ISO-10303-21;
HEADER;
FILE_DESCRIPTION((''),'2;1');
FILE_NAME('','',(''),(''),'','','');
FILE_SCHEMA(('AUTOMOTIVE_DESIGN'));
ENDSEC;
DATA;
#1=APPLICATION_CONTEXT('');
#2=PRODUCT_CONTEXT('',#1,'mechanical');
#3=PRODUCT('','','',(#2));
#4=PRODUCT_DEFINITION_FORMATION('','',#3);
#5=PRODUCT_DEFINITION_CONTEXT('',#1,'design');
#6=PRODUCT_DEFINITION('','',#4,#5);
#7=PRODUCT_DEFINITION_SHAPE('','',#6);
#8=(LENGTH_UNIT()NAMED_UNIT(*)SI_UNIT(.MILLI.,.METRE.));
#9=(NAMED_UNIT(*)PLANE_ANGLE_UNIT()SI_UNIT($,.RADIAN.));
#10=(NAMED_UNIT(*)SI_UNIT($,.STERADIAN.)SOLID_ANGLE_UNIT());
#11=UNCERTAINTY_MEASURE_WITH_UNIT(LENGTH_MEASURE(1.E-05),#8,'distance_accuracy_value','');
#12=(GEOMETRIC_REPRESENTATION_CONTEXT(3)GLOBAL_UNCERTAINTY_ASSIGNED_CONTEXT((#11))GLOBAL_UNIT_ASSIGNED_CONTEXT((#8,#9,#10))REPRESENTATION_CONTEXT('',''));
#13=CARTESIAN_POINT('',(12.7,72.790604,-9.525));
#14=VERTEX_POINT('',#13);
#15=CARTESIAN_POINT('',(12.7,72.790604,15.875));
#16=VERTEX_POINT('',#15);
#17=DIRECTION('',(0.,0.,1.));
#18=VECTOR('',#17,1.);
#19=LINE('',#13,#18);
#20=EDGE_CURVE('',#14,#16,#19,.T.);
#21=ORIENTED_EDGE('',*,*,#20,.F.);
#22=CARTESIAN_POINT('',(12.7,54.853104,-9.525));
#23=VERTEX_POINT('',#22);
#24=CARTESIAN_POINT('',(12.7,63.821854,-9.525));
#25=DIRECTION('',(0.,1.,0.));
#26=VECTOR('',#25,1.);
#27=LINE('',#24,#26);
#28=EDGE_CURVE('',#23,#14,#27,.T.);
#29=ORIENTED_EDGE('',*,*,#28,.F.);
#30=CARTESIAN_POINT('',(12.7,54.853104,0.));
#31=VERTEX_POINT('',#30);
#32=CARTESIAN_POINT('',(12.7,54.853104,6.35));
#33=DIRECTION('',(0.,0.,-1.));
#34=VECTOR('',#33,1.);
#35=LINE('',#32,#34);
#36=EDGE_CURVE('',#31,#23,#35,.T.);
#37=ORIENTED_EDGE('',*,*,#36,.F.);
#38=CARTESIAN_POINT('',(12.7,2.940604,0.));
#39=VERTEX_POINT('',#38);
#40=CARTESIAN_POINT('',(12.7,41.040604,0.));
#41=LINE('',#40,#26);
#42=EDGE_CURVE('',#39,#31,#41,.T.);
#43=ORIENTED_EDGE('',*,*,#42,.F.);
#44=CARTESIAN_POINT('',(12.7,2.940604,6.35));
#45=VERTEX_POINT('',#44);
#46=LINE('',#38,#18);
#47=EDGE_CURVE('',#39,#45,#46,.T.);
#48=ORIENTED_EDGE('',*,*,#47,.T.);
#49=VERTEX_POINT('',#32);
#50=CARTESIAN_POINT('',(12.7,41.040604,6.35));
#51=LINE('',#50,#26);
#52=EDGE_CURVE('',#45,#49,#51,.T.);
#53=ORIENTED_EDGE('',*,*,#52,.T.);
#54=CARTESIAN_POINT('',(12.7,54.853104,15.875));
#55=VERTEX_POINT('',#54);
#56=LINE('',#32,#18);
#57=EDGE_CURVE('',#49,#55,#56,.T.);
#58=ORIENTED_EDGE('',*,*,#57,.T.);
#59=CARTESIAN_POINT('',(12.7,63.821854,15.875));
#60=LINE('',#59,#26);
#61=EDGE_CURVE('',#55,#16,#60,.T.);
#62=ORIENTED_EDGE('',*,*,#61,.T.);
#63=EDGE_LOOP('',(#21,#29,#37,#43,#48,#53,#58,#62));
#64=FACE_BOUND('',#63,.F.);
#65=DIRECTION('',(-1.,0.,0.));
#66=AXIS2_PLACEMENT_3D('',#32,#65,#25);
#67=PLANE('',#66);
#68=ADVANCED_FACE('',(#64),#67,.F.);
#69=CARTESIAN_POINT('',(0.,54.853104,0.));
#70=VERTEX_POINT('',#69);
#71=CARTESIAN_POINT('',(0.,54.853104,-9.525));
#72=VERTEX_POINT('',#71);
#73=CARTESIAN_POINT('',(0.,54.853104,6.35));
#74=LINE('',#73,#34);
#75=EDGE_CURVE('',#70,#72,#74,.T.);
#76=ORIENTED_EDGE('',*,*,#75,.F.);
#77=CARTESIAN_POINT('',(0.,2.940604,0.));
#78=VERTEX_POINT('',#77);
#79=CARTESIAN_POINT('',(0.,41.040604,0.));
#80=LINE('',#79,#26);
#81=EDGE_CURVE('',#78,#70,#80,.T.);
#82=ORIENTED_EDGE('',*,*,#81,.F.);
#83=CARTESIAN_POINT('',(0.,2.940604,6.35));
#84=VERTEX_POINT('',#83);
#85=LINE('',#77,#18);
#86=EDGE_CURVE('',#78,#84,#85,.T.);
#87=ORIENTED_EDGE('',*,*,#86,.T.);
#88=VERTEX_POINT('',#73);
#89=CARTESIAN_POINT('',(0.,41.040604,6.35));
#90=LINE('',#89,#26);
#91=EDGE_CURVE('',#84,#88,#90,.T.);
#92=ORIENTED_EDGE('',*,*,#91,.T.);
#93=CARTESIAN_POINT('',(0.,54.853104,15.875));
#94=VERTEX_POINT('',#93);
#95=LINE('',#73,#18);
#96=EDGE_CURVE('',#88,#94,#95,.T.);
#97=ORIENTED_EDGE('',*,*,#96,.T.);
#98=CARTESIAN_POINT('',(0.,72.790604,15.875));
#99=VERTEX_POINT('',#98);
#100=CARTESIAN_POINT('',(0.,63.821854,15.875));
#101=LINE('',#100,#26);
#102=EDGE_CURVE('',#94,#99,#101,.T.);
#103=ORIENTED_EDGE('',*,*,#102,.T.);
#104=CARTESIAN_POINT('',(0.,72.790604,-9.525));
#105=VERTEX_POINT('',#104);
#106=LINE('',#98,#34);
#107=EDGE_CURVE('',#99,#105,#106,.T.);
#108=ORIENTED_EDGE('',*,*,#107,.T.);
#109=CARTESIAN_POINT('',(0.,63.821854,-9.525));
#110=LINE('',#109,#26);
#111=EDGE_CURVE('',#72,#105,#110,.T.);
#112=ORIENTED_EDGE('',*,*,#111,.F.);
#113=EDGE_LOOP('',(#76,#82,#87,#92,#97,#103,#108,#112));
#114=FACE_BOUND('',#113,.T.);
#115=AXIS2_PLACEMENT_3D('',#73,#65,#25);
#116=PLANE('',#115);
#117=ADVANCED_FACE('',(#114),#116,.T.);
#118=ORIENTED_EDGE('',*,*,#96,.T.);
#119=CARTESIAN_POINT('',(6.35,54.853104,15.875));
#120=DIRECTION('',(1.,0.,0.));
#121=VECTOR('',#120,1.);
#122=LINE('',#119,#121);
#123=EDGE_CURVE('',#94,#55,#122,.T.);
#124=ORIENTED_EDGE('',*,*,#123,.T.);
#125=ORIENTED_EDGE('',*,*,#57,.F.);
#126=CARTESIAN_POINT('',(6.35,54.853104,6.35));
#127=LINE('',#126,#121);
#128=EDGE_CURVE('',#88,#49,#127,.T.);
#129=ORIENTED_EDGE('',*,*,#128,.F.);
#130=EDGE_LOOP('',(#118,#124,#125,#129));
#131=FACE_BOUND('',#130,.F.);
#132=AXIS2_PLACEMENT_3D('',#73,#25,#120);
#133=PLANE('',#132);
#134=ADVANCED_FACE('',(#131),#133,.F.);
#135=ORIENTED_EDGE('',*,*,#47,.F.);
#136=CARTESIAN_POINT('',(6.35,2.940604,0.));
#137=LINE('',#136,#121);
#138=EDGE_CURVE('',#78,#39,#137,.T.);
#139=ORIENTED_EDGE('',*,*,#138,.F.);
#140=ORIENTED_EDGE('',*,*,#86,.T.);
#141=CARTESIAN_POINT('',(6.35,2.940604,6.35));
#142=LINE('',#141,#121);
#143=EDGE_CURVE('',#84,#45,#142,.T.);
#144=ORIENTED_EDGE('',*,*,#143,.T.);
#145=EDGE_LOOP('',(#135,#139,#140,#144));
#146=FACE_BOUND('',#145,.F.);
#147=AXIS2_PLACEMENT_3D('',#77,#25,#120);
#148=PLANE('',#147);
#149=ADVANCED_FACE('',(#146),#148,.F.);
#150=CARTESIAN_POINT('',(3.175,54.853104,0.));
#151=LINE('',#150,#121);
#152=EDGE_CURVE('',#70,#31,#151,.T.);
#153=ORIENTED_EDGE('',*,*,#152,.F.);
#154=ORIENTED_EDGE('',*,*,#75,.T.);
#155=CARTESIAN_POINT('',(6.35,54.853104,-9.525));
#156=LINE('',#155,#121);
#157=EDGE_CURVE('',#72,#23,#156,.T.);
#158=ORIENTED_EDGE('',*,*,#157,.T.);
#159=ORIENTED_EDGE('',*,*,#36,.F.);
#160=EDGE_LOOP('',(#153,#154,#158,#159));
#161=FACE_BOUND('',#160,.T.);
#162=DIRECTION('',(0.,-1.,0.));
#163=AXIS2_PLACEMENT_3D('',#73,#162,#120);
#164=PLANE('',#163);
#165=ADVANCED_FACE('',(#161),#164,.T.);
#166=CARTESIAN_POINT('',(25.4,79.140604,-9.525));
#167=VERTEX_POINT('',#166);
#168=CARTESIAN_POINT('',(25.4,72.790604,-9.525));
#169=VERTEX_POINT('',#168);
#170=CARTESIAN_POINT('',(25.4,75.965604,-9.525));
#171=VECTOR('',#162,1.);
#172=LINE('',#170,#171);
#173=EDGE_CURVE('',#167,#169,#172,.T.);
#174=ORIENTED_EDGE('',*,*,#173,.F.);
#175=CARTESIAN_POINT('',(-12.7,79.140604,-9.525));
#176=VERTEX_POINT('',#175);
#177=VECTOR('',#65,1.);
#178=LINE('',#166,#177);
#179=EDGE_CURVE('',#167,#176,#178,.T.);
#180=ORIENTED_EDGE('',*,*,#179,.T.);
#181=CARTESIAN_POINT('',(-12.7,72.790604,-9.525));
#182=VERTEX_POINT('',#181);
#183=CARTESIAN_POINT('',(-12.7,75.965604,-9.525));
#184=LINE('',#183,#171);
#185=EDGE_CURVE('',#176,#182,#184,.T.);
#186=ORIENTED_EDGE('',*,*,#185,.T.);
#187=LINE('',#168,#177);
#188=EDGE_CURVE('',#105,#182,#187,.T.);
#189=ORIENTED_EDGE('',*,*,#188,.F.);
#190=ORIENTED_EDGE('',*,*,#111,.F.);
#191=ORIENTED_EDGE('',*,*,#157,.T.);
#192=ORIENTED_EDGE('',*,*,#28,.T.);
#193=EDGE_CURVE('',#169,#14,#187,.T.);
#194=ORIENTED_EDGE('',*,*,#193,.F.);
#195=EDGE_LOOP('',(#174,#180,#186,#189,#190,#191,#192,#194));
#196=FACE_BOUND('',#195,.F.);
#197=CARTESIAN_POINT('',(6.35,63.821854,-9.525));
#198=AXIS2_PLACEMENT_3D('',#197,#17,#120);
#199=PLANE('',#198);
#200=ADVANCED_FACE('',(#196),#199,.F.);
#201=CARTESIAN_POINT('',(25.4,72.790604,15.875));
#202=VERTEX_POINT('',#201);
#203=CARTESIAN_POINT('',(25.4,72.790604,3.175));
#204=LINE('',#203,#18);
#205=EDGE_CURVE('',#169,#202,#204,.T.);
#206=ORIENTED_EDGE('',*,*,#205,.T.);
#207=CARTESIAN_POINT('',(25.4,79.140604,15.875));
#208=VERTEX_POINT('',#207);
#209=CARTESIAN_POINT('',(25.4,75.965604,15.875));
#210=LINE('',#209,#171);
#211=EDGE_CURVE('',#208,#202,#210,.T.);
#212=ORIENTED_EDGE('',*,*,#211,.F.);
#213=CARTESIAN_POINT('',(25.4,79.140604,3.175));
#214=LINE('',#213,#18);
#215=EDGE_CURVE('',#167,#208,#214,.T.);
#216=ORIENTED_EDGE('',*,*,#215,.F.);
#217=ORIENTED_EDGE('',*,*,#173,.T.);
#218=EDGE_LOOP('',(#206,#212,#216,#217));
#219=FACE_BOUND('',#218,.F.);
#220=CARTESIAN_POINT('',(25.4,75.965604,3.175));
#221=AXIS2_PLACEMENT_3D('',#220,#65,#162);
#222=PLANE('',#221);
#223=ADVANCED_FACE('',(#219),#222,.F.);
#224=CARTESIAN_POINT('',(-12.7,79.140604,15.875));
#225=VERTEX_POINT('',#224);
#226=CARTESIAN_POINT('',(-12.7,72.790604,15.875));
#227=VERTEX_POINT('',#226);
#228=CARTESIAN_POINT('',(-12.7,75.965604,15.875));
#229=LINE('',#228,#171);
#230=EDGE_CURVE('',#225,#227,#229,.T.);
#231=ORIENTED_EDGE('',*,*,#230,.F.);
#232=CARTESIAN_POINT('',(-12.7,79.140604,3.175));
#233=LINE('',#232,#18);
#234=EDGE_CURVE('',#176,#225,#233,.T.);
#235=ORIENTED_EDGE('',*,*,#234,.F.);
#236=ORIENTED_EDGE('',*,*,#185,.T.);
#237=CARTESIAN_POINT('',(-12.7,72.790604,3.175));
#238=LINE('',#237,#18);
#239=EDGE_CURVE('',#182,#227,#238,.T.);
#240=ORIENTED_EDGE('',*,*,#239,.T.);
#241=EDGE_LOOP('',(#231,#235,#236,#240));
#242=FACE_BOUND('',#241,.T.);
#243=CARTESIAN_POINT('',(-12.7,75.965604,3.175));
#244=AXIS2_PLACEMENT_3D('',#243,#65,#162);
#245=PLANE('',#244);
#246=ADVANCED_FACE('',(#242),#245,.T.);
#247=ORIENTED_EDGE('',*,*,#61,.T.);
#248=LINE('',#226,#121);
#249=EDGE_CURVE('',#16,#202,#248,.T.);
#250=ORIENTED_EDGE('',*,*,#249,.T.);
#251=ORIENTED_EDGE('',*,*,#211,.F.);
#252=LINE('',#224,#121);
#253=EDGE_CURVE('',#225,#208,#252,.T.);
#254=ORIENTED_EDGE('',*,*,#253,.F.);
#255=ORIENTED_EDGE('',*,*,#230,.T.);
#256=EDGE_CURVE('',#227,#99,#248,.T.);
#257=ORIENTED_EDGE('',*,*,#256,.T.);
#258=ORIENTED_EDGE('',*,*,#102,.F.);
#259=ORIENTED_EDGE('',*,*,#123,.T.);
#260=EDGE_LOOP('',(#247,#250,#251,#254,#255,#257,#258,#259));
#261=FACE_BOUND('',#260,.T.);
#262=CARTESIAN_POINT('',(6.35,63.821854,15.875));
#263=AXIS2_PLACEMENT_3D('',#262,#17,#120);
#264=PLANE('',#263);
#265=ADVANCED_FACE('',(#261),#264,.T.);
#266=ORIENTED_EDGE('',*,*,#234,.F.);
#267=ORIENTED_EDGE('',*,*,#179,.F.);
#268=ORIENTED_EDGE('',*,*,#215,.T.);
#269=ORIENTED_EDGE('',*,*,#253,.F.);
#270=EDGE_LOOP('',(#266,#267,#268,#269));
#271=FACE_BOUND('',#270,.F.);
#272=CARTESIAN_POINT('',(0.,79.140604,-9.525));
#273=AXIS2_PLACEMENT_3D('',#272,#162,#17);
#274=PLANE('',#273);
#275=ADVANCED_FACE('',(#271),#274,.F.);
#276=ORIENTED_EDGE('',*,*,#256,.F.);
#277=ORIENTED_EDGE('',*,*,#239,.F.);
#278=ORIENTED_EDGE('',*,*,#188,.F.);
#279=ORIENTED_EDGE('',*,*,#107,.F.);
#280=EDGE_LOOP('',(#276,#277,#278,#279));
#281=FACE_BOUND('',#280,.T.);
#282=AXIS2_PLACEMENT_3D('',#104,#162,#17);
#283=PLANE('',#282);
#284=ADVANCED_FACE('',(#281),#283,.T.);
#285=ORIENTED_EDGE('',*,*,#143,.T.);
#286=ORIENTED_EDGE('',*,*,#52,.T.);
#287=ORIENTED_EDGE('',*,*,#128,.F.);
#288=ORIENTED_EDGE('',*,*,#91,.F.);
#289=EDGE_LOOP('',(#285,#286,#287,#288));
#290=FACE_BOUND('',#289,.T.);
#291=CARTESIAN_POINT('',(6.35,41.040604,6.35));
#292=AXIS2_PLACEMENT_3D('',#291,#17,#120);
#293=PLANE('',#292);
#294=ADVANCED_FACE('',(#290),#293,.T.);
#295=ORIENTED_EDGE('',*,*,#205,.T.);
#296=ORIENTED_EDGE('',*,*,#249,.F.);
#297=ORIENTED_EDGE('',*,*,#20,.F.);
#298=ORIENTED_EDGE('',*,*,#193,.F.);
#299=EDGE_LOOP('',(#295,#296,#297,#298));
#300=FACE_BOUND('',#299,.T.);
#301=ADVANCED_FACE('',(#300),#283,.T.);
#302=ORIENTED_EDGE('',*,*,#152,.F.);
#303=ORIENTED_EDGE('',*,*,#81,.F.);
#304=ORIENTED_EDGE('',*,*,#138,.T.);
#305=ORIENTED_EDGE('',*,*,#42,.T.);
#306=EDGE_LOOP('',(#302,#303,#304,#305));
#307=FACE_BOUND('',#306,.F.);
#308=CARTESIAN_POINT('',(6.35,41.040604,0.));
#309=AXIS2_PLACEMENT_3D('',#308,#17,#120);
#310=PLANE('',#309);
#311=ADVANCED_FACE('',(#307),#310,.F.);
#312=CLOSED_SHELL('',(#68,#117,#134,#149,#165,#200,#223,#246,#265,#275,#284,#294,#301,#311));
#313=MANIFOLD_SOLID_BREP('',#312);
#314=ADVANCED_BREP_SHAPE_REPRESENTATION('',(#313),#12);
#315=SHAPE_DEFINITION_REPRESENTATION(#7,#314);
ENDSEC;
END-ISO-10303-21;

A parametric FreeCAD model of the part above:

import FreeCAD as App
import Part
import Sketcher

V = App.Vector
Q = App.Units.Quantity


def add_polygon(sketch, points):
    """Adds a closed chain of lines whose ends are joined by coincident constraints."""
    first, n = sketch.GeometryCount, len(points)
    for a, b in zip(points, points[1:] + points[:1]):
        sketch.addGeometry(Part.LineSegment(App.Vector(*a, 0), App.Vector(*b, 0)), False)
    for i in range(n):
        sketch.addConstraint(Sketcher.Constraint("Coincident", first + i, 2, first + (i + 1) % n, 1))

doc = App.newDocument("Part")
body = doc.addObject("PartDesign::Body", "Body")

# Sketch on XY plane
sketch1 = doc.addObject("Sketcher::SketchObject", "Sketch")
body.addObject(sketch1)
sketch1.AttachmentSupport = (doc.XY_Plane, [""])
sketch1.MapMode = "FlatFace"
add_polygon(sketch1, [(0, 79.140604), (0, 2.940604), (12.7, 2.940604), (12.7, 79.140604)])  # lines 0-3
sketch1.addConstraint(Sketcher.Constraint("Vertical", 0))
sketch1.addConstraint(Sketcher.Constraint("Horizontal", 1))
sketch1.addConstraint(Sketcher.Constraint("Vertical", 2))
sketch1.addConstraint(Sketcher.Constraint("Horizontal", 3))
sketch1.addConstraint(Sketcher.Constraint("PointOnObject", 0, 2, -2))
sketch1.addConstraint(Sketcher.Constraint("DistanceY", 0, 2, 0, 1, Q("3 in")))
sketch1.addConstraint(Sketcher.Constraint("DistanceX", 1, 1, 1, 2, Q("0.5 in")))
sketch1.addConstraint(Sketcher.Constraint("DistanceY", -1, 1, 0, 2, Q("2.940604 mm")))
pad1 = doc.addObject("PartDesign::Pad", "Pad")
body.addObject(pad1)
pad1.Profile = sketch1
pad1.Length = Q("0.25 in")

# Sketch on YZ plane
sketch2 = doc.addObject("Sketcher::SketchObject", "Sketch001")
body.addObject(sketch2)
sketch2.AttachmentSupport = (doc.YZ_Plane, [""])
sketch2.MapMode = "FlatFace"
add_polygon(sketch2, [(79.140604, 15.875), (79.140604, -9.525), (72.790604, -9.525), (72.790604, 15.875)])  # lines 0-3
sketch2.addConstraint(Sketcher.Constraint("Vertical", 0))
sketch2.addConstraint(Sketcher.Constraint("Horizontal", 1))
sketch2.addConstraint(Sketcher.Constraint("Vertical", 2))
sketch2.addConstraint(Sketcher.Constraint("Horizontal", 3))
sketch2.addConstraint(Sketcher.Constraint("DistanceY", 0, 2, 0, 1, Q("1 in")))
sketch2.addConstraint(Sketcher.Constraint("DistanceX", 1, 2, 1, 1, Q("0.25 in")))
sketch2.addConstraint(Sketcher.Constraint("DistanceY", 0, 2, -1, 1, Q("0.375 in")))
sketch2.addConstraint(Sketcher.Constraint("DistanceX", -1, 1, 0, 2, Q("79.140604 mm")))
pad2 = doc.addObject("PartDesign::Pad", "Pad001")
body.addObject(pad2)
pad2.Profile = sketch2
pad2.Type = "TwoLengths"
pad2.Length = Q("0.5 in")
pad2.Length2 = Q("1 in")
pad2.Reversed = True

# Sketch on XY plane
sketch3 = doc.addObject("Sketcher::SketchObject", "Sketch002")
body.addObject(sketch3)
sketch3.AttachmentSupport = (doc.XY_Plane, [""])
sketch3.MapMode = "FlatFace"
sketch3.AttachmentOffset = App.Placement(V(0, 0, 0.25 * 25.4), App.Rotation())
add_polygon(sketch3, [(0, 72.790604), (0, 54.853104), (12.7, 54.853104), (12.7, 72.790604)])  # lines 0-3
sketch3.addConstraint(Sketcher.Constraint("Vertical", 0))
sketch3.addConstraint(Sketcher.Constraint("Horizontal", 1))
sketch3.addConstraint(Sketcher.Constraint("Vertical", 2))
sketch3.addConstraint(Sketcher.Constraint("Horizontal", 3))
sketch3.addConstraint(Sketcher.Constraint("PointOnObject", 0, 2, -2))
sketch3.addConstraint(Sketcher.Constraint("DistanceX", 1, 1, 1, 2, Q("0.5 in")))
sketch3.addConstraint(Sketcher.Constraint("DistanceY", 0, 2, 0, 1, Q("17.9375 mm")))
sketch3.addConstraint(Sketcher.Constraint("DistanceY", -1, 1, 0, 2, Q("54.853104 mm")))
pad3 = doc.addObject("PartDesign::Pad", "Pad002")
body.addObject(pad3)
pad3.Profile = sketch3
pad3.Type = "TwoLengths"
pad3.Length = Q("0.375 in")
pad3.Length2 = Q("0.625 in")

doc.recompute()
